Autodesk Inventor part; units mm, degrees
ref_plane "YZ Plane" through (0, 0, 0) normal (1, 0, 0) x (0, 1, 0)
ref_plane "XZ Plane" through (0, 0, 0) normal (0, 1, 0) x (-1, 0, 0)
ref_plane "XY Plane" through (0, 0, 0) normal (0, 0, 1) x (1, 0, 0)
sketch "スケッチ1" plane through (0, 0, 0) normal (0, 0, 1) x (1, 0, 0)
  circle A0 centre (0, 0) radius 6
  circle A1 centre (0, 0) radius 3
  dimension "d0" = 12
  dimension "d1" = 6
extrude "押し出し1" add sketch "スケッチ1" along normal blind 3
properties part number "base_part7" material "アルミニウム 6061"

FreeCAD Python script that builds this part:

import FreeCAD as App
import Part
import Sketcher

V = App.Vector

doc = App.newDocument("Part")
body = doc.addObject("PartDesign::Body", "Body")

sketch1 = body.newObject("Sketcher::SketchObject", "Sketch")
sketch1.AttachmentSupport = (doc.getObject("XY_Plane"), [""])
sketch1.MapMode = "FlatFace"
sketch1.addGeometry(Part.Circle(V(0, 0, 0), V(0, 0, 1), 6), False)
sketch1.addGeometry(Part.Circle(V(0, 0, 0), V(0, 0, 1), 3), False)
sketch1.addConstraint(Sketcher.Constraint("Coincident", 0, 3, -1, 1))
sketch1.addConstraint(Sketcher.Constraint("Coincident", 1, 3, -1, 1))
sketch1.addConstraint(Sketcher.Constraint("Diameter", 0, 12.0))
sketch1.addConstraint(Sketcher.Constraint("Diameter", 1, 6.0))
pad1 = body.newObject("PartDesign::Pad", "Pad")
pad1.Profile = sketch1
pad1.Length = 3

doc.recompute()
